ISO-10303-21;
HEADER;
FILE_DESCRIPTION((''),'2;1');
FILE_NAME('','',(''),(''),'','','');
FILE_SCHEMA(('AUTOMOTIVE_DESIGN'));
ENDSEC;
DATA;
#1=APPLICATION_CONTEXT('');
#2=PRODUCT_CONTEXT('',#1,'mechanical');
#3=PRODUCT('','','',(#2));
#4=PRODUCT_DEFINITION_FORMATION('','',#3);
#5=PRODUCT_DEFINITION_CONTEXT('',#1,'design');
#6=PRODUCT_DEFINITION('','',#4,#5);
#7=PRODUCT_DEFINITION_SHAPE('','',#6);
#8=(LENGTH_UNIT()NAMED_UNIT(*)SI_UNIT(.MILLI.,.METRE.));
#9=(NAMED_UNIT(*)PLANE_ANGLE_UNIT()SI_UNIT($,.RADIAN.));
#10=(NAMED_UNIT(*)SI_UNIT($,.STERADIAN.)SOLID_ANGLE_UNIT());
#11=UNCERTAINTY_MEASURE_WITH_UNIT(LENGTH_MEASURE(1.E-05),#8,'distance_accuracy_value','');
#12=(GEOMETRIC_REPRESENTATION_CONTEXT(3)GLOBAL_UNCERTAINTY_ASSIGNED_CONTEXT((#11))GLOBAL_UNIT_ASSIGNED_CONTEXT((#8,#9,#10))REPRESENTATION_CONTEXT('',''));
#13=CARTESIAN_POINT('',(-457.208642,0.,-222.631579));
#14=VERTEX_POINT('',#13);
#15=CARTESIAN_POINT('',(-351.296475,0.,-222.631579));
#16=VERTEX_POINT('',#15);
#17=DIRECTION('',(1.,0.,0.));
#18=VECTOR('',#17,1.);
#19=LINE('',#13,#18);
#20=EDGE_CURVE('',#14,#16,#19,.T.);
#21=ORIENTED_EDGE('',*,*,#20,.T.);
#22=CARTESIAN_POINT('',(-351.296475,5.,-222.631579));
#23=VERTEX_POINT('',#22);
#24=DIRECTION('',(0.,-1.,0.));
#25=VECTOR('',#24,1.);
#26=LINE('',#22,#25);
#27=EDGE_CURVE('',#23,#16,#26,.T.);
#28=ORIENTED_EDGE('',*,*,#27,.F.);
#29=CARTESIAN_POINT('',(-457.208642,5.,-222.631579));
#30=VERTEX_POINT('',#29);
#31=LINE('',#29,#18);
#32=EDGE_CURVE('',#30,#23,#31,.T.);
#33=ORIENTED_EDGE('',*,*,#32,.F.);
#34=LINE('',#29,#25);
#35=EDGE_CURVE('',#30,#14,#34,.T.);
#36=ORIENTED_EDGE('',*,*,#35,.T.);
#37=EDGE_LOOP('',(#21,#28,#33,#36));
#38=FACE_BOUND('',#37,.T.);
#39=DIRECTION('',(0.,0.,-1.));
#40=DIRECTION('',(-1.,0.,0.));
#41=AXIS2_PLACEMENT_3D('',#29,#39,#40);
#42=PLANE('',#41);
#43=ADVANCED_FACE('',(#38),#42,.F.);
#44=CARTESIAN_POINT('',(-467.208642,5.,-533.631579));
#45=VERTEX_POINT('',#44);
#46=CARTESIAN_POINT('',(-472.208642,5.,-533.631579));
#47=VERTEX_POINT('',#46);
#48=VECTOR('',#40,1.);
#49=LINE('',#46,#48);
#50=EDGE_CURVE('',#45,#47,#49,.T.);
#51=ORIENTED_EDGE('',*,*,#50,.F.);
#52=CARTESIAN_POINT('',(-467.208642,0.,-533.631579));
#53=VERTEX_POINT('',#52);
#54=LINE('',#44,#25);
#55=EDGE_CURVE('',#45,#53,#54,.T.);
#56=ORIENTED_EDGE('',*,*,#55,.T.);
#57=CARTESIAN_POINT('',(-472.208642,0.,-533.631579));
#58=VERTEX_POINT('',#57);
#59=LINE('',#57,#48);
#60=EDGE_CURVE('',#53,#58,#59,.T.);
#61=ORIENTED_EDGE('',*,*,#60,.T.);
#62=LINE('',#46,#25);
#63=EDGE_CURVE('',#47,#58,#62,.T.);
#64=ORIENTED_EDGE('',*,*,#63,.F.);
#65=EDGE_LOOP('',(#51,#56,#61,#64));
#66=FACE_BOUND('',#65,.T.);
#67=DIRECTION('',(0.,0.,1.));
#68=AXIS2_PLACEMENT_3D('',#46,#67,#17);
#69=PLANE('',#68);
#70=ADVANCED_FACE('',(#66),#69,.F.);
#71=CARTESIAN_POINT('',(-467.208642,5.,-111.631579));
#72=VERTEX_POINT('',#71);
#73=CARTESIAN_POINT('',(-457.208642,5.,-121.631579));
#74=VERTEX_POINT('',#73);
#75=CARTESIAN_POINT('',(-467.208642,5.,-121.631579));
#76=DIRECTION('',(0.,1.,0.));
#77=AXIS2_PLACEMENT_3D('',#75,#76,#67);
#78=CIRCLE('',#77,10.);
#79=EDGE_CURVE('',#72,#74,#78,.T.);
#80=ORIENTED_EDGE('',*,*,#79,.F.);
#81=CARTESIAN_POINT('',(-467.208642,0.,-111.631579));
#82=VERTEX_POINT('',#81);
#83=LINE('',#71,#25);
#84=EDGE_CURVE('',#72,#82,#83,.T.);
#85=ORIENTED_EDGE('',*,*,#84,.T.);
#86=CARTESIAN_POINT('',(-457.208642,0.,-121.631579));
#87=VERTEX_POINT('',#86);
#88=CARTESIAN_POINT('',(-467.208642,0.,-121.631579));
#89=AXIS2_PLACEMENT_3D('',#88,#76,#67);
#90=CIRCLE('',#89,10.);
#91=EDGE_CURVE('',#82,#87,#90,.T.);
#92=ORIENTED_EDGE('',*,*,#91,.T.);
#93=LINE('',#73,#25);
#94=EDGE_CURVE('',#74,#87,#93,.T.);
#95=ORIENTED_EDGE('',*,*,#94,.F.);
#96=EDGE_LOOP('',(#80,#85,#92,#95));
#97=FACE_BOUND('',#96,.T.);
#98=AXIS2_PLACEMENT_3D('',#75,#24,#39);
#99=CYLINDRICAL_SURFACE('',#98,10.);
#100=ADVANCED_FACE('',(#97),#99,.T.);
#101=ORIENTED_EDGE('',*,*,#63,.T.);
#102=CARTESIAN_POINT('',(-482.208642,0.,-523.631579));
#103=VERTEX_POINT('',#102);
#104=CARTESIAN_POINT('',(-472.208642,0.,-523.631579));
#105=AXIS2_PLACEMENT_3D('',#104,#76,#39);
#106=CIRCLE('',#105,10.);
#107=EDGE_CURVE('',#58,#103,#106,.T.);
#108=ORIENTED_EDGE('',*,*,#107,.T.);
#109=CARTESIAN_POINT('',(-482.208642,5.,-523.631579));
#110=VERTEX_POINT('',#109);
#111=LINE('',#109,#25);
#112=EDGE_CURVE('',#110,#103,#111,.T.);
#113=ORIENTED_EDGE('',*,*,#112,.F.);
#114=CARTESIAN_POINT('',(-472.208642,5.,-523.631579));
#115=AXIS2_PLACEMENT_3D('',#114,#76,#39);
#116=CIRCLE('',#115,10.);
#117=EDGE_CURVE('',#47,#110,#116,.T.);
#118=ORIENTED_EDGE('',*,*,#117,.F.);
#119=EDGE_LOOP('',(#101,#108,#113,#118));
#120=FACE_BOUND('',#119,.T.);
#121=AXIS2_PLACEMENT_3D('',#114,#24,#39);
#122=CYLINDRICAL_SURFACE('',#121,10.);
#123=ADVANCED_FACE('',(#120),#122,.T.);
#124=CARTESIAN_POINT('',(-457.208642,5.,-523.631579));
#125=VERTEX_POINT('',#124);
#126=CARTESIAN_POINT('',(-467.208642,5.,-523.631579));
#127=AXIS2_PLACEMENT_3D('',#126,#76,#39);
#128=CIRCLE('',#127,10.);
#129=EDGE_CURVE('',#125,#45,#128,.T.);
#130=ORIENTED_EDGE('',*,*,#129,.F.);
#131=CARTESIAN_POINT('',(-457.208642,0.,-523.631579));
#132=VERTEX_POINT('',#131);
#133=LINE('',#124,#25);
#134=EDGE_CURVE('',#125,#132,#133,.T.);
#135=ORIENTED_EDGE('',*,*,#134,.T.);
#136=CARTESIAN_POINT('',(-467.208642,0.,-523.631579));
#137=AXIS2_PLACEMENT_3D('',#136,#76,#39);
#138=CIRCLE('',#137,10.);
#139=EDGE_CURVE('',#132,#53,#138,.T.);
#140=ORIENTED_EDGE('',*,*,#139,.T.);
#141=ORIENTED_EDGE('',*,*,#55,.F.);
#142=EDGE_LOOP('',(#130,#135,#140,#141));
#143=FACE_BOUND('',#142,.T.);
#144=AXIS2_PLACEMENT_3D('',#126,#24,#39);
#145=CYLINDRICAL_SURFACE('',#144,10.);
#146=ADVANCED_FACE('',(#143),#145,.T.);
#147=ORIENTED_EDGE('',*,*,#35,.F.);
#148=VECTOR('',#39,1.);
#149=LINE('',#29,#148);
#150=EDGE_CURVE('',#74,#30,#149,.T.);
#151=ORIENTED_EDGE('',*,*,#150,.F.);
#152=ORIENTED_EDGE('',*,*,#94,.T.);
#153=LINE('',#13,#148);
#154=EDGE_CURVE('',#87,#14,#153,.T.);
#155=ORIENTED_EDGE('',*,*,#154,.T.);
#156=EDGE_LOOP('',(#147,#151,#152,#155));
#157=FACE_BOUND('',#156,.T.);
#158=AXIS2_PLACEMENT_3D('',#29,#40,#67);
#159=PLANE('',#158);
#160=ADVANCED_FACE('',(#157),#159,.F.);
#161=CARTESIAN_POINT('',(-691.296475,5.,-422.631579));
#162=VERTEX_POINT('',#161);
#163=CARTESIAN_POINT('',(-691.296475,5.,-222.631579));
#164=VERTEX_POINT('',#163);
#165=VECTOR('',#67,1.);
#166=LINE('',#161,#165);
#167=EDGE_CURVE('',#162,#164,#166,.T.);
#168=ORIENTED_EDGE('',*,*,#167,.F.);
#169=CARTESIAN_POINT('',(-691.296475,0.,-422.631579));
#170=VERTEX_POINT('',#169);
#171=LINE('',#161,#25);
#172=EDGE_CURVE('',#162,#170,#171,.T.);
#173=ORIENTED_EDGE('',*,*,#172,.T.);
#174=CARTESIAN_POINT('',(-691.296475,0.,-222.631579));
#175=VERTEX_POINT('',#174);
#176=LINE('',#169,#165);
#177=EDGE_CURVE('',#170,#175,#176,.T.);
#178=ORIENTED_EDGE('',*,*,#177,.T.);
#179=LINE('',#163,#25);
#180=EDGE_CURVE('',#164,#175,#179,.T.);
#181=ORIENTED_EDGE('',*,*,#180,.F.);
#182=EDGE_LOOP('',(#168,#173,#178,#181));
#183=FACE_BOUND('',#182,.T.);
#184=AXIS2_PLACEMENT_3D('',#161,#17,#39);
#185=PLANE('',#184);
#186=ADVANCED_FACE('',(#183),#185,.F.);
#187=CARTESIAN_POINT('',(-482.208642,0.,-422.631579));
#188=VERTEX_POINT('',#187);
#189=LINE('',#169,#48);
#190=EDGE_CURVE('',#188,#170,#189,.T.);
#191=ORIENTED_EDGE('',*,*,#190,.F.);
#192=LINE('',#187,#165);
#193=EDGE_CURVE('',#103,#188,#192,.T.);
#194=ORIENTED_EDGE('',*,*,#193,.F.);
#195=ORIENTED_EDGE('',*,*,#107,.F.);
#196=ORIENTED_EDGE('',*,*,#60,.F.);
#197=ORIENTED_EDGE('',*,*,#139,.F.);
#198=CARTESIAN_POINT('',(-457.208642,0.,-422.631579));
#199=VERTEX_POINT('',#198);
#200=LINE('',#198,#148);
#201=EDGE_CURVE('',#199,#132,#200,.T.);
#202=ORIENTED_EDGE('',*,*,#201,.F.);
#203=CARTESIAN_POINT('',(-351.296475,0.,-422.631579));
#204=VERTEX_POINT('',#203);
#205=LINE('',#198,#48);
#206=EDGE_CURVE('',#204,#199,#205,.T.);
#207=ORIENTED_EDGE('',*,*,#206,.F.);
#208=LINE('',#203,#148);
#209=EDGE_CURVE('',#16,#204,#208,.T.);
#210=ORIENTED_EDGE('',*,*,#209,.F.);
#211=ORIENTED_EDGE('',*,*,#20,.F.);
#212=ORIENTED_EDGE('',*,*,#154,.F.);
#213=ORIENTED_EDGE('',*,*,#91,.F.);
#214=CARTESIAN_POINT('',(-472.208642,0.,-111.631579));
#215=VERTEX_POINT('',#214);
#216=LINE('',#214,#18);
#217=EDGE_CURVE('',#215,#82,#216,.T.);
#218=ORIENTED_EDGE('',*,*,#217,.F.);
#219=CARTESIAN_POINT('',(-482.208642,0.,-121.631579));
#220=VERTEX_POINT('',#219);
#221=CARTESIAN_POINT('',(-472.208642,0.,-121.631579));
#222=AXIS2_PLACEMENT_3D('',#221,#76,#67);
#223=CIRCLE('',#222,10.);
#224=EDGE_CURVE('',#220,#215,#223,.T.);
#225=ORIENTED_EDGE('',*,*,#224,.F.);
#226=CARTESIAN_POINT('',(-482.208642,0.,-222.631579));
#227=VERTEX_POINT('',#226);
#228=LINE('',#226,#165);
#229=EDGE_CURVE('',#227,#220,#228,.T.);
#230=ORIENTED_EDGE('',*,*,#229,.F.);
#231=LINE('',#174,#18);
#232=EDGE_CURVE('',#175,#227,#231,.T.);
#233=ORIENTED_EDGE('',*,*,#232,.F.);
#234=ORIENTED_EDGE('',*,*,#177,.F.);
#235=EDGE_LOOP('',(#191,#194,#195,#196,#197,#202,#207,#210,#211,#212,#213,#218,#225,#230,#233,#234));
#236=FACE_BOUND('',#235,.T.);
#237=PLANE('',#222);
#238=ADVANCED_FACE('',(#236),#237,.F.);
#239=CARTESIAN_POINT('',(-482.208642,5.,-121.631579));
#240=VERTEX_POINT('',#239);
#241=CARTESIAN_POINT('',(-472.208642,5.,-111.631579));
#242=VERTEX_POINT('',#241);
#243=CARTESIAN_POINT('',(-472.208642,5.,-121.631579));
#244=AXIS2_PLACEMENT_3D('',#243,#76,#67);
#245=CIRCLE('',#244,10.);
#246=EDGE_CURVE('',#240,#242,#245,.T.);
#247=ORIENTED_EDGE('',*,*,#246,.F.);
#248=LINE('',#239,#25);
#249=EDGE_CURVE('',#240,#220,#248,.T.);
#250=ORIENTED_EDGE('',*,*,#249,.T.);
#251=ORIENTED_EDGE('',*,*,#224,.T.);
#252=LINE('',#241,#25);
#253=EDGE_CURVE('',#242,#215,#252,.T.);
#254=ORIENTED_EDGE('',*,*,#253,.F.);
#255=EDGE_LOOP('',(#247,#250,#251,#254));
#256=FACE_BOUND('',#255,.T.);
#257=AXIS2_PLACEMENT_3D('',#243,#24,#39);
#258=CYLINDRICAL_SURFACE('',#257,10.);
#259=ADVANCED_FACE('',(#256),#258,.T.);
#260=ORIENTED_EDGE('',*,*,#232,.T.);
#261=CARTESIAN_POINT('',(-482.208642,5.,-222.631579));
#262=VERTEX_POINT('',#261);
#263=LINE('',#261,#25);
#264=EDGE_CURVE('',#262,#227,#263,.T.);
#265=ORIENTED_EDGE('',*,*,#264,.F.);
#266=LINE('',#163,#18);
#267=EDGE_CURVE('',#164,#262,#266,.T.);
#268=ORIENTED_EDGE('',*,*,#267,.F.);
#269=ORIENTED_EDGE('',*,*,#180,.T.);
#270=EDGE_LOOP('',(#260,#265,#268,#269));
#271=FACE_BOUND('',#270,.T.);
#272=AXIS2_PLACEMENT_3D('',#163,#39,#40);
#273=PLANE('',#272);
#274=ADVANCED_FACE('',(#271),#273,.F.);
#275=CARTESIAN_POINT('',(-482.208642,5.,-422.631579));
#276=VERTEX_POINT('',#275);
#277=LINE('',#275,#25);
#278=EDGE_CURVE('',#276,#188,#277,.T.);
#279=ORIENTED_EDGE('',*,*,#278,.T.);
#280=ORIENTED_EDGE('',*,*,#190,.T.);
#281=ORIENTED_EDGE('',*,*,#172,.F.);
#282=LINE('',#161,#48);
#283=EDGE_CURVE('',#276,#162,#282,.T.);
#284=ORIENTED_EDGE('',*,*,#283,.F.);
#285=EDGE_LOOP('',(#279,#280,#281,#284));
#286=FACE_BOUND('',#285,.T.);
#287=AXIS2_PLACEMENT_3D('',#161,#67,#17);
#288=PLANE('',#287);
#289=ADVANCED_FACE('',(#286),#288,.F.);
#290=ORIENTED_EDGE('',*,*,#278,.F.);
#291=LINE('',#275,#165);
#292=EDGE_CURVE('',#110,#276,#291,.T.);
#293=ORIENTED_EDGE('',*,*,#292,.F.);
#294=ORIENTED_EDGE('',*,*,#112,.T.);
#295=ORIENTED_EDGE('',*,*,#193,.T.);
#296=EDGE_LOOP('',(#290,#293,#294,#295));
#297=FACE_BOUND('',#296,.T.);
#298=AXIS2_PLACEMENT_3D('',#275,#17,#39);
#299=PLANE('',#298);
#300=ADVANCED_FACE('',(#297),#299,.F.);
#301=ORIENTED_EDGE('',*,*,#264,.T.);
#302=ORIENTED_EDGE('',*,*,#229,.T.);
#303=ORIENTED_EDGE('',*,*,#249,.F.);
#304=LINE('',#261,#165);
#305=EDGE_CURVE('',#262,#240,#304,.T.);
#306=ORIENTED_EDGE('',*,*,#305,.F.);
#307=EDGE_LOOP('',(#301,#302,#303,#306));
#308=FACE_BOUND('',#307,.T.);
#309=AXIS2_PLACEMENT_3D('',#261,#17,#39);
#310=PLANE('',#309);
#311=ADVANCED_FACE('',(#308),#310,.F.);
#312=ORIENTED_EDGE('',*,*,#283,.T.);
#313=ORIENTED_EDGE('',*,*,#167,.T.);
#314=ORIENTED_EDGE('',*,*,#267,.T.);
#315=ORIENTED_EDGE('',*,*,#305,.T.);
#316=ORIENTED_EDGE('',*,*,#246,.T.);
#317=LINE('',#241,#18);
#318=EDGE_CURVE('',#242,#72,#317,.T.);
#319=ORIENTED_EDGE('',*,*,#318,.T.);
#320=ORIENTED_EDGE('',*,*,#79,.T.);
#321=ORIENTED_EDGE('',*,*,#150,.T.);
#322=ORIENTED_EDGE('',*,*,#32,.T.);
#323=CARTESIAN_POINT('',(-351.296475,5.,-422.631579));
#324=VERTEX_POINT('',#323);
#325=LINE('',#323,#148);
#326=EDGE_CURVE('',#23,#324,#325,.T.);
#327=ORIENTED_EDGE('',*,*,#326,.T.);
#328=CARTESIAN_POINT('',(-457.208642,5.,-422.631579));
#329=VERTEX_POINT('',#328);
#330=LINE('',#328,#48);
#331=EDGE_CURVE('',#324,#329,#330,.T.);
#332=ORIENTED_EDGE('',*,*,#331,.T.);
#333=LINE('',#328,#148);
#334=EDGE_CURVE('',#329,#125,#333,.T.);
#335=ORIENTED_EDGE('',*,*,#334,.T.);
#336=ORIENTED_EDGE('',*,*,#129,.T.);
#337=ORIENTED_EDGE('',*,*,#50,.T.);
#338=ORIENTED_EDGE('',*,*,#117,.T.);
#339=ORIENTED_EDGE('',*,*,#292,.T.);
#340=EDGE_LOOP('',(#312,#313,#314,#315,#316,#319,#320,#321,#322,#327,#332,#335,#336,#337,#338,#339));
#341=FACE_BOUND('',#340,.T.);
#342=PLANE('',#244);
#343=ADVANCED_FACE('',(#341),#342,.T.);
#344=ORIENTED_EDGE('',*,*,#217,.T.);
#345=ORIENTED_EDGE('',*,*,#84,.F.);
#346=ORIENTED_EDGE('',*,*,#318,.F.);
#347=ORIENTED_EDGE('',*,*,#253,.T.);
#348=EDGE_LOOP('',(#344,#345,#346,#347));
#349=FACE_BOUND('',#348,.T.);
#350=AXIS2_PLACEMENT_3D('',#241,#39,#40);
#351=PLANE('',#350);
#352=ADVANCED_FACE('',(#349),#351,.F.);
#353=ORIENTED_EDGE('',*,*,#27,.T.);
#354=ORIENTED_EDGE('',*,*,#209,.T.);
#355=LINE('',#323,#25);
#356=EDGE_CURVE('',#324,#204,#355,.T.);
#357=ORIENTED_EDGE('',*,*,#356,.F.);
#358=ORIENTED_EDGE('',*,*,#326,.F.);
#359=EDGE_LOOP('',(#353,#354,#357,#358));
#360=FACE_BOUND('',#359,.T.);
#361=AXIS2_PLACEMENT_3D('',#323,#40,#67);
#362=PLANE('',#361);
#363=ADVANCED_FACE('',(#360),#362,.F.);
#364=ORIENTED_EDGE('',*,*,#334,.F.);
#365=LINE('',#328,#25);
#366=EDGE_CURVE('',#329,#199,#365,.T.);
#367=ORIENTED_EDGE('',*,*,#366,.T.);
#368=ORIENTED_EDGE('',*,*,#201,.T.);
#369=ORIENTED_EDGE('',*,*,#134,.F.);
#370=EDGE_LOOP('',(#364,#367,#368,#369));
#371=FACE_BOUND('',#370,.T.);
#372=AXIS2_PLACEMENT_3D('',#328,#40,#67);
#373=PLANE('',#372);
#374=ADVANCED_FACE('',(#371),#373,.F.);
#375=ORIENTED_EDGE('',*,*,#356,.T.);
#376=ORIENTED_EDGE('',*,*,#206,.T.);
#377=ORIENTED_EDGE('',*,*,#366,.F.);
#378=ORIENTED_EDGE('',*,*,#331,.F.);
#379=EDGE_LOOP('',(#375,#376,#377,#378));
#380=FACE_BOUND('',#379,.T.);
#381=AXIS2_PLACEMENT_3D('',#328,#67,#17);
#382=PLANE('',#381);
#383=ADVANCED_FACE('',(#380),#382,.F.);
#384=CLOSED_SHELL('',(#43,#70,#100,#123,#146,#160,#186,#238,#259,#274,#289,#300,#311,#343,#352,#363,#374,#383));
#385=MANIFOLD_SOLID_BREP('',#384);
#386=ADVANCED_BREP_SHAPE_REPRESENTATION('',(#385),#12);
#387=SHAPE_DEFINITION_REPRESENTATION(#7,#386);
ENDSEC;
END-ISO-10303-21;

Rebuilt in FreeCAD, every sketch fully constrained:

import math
import FreeCAD as App
import Part
import Sketcher
Q = App.Units.Quantity

doc = App.newDocument("Part")
params = doc.addObject("Spreadsheet::Sheet", "Params")
for row, (alias, value) in enumerate([
    ("sketch1_radius", "10 mm"),
    ("sketch1_width", "5 mm"),
    ("sketch1_height", "101 mm"),
    ("sketch1_height2", "200 mm"),
    ("pad1_length", "5 mm"),
], start=1):
    params.set(f"A{row}", alias)
    params.set(f"B{row}", "=" + value)
    params.setAlias(f"B{row}", alias)

body = doc.addObject("PartDesign::Body", "Body")

# Sketch on XZ plane
sketch1 = body.newObject("Sketcher::SketchObject", "Sketch")
sketch1.AttachmentSupport = (doc.getObject("XZ_Plane"), [""])
sketch1.MapMode = "FlatFace"
sketch1.addGeometry([
    Part.LineSegment(App.Vector(-351, -423, 0), App.Vector(-457, -423, 0)),  # 0
    Part.LineSegment(App.Vector(-457, -423, 0), App.Vector(-457, -524, 0)),  # 1
    Part.ArcOfCircle(Part.Circle(App.Vector(-467, -524, 0), App.Vector(0, 0, 1), 10), math.radians(-90), math.radians(0)),  # 2
    Part.LineSegment(App.Vector(-467, -534, 0), App.Vector(-472, -534, 0)),  # 3
    Part.ArcOfCircle(Part.Circle(App.Vector(-472, -524, 0), App.Vector(0, 0, 1), 10), math.radians(180), math.radians(270)),  # 4
    Part.LineSegment(App.Vector(-482, -524, 0), App.Vector(-482, -423, 0)),  # 5
    Part.LineSegment(App.Vector(-482, -423, 0), App.Vector(-691, -423, 0)),  # 6
    Part.LineSegment(App.Vector(-691, -423, 0), App.Vector(-691, -223, 0)),  # 7
    Part.LineSegment(App.Vector(-691, -223, 0), App.Vector(-482, -223, 0)),  # 8
    Part.LineSegment(App.Vector(-482, -223, 0), App.Vector(-482, -122, 0)),  # 9
    Part.ArcOfCircle(Part.Circle(App.Vector(-472, -122, 0), App.Vector(0, 0, 1), 10), math.radians(90), math.radians(180)),  # 10
    Part.LineSegment(App.Vector(-472, -112, 0), App.Vector(-467, -112, 0)),  # 11
    Part.ArcOfCircle(Part.Circle(App.Vector(-467, -122, 0), App.Vector(0, 0, 1), 10), math.radians(0), math.radians(90)),  # 12
    Part.LineSegment(App.Vector(-457, -122, 0), App.Vector(-457, -223, 0)),  # 13
    Part.LineSegment(App.Vector(-457, -223, 0), App.Vector(-351, -223, 0)),  # 14
    Part.LineSegment(App.Vector(-351, -223, 0), App.Vector(-351, -423, 0)),  # 15
], False)
sketch1.addConstraint([
    Sketcher.Constraint("Coincident", 0, 2, 1, 1),
    Sketcher.Constraint("Tangent", 1, 2, 2, 2),
    Sketcher.Constraint("Tangent", 2, 1, 3, 1),
    Sketcher.Constraint("Tangent", 3, 2, 4, 2),
    Sketcher.Constraint("Tangent", 4, 1, 5, 1),
    Sketcher.Constraint("Coincident", 5, 2, 6, 1),
    Sketcher.Constraint("Coincident", 6, 2, 7, 1),
    Sketcher.Constraint("Coincident", 7, 2, 8, 1),
    Sketcher.Constraint("Coincident", 8, 2, 9, 1),
    Sketcher.Constraint("Tangent", 9, 2, 10, 2),
    Sketcher.Constraint("Tangent", 10, 1, 11, 1),
    Sketcher.Constraint("Tangent", 11, 2, 12, 2),
    Sketcher.Constraint("Tangent", 12, 1, 13, 1),
    Sketcher.Constraint("Coincident", 13, 2, 14, 1),
    Sketcher.Constraint("Coincident", 14, 2, 15, 1),
    Sketcher.Constraint("Coincident", 15, 2, 0, 1),
    Sketcher.Constraint("Horizontal", 0),
    Sketcher.Constraint("Vertical", 1),
    Sketcher.Constraint("Horizontal", 3),
    Sketcher.Constraint("Vertical", 5),
    Sketcher.Constraint("Horizontal", 6),
    Sketcher.Constraint("Vertical", 7),
    Sketcher.Constraint("Horizontal", 8),
    Sketcher.Constraint("Vertical", 9),
    Sketcher.Constraint("Horizontal", 11),
    Sketcher.Constraint("Vertical", 13),
    Sketcher.Constraint("Horizontal", 14),
    Sketcher.Constraint("Vertical", 15),
    Sketcher.Constraint("Equal", 2, 4),
    Sketcher.Constraint("Equal", 4, 10),
    Sketcher.Constraint("Equal", 10, 12),
    Sketcher.Constraint("Horizontal", 0, 2, 5, 2),
    Sketcher.Constraint("Horizontal", 8, 2, 13, 2),
    Sketcher.Constraint("Vertical", 4, 3, 10, 3),
    Sketcher.Constraint("Vertical", 2, 3, 12, 3),
    Sketcher.Constraint("Equal", 5, 9),
    Sketcher.Constraint("Radius", 2, Q("10 mm")),
    Sketcher.Constraint("DistanceX", 3, 2, 3, 1, Q("5 mm")),
    Sketcher.Constraint("DistanceY", 1, 2, 1, 1, Q("101 mm")),
    Sketcher.Constraint("DistanceY", 7, 1, 7, 2, Q("200 mm")),
    Sketcher.Constraint("DistanceX", 0, 2, 0, 1, Q("105.912167 mm")),
    Sketcher.Constraint("DistanceX", 6, 2, 6, 1, Q("209.087833 mm")),
    Sketcher.Constraint("DistanceY", 2, 3, -1, 1, Q("523.631579 mm")),
    Sketcher.Constraint("DistanceX", 2, 3, -1, 1, Q("467.208642 mm")),
])
sketch1.setExpression("Constraints[36]", "Params.sketch1_radius")
sketch1.setExpression("Constraints[37]", "Params.sketch1_width")
sketch1.setExpression("Constraints[38]", "Params.sketch1_height")
sketch1.setExpression("Constraints[39]", "Params.sketch1_height2")
pad1 = body.newObject("PartDesign::Pad", "Pad")
pad1.Profile = sketch1
pad1.setExpression("Length", "Params.pad1_length")
pad1.Reversed = True

doc.recompute()
